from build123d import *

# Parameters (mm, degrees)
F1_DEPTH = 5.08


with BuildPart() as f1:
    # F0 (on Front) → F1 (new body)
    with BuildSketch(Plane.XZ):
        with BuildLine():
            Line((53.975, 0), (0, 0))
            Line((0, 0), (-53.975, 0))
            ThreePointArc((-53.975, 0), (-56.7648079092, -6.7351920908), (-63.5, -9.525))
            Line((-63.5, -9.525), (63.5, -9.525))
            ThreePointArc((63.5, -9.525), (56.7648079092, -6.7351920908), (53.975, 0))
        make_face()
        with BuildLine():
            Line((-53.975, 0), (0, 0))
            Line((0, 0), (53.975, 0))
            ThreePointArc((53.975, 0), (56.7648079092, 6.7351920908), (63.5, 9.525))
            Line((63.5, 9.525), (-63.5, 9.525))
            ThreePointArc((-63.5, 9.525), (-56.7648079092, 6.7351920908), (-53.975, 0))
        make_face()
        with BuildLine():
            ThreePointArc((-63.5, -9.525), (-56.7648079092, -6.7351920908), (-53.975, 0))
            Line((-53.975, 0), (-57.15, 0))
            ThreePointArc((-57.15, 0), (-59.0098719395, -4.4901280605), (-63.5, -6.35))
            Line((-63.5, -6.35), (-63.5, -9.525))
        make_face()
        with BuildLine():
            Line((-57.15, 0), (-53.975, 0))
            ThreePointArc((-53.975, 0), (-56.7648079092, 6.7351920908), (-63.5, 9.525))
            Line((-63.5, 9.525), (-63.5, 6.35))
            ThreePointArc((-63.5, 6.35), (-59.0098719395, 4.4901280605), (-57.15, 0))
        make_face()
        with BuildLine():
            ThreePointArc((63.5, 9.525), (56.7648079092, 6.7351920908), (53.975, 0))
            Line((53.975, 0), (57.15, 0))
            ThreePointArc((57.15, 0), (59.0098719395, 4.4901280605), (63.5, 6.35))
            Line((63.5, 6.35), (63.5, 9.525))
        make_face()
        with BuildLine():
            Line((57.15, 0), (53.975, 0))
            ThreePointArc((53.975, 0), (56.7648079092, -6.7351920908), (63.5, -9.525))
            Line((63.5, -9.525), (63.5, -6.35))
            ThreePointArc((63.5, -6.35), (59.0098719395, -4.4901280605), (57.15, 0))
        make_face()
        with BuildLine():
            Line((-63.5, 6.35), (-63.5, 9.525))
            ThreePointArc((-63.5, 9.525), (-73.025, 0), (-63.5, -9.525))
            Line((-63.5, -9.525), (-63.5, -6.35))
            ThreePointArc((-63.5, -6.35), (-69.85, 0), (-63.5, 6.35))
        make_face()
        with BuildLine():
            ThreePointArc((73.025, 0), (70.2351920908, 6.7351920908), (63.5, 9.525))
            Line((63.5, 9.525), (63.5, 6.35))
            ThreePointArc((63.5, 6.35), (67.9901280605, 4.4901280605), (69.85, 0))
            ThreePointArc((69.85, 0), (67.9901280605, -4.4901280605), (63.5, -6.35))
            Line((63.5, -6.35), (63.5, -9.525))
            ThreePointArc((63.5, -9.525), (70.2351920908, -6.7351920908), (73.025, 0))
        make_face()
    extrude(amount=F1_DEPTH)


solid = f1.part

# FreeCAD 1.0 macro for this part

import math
import FreeCAD as App
import Part
import Sketcher
Q = App.Units.Quantity

doc = App.newDocument("Part")
body = doc.addObject("PartDesign::Body", "Body")

sketch1 = body.newObject("Sketcher::SketchObject", "Sketch")
sketch1.AttachmentSupport = (doc.getObject("XZ_Plane"), [""])
sketch1.MapMode = "FlatFace"
sketch1.addGeometry([
    Part.LineSegment(App.Vector(-64, -10, 0), App.Vector(64, -10, 0)),
    Part.ArcOfCircle(Part.Circle(App.Vector(64, 0, 0), App.Vector(0, 0, 1), 10), math.radians(-90), math.radians(0)),
    Part.ArcOfCircle(Part.Circle(App.Vector(64, 0, 0), App.Vector(0, 0, 1), 10), math.radians(0), math.radians(90)),
    Part.LineSegment(App.Vector(64, 10, 0), App.Vector(-64, 10, 0)),
    Part.ArcOfCircle(Part.Circle(App.Vector(-64, 0, 0), App.Vector(0, 0, 1), 10), math.radians(90), math.radians(270)),
    Part.ArcOfCircle(Part.Circle(App.Vector(64, 0, 0), App.Vector(0, 0, 1), 6), math.radians(180), math.radians(270)),
    Part.ArcOfCircle(Part.Circle(App.Vector(64, 0, 0), App.Vector(0, 0, 1), 6), math.radians(90), math.radians(180)),
    Part.ArcOfCircle(Part.Circle(App.Vector(64, 0, 0), App.Vector(0, 0, 1), 6), math.radians(0), math.radians(90)),
    Part.ArcOfCircle(Part.Circle(App.Vector(64, 0, 0), App.Vector(0, 0, 1), 6), math.radians(-90), math.radians(0)),
    Part.ArcOfCircle(Part.Circle(App.Vector(-64, 0, 0), App.Vector(0, 0, 1), 6), math.radians(0), math.radians(90)),
    Part.ArcOfCircle(Part.Circle(App.Vector(-64, 0, 0), App.Vector(0, 0, 1), 6), math.radians(-90), math.radians(0)),
    Part.ArcOfCircle(Part.Circle(App.Vector(-64, 0, 0), App.Vector(0, 0, 1), 6), math.radians(90), math.radians(270)),
], False)
sketch1.addConstraint([
    Sketcher.Constraint("Tangent", 0, 2, 1, 1),
    Sketcher.Constraint("Tangent", 1, 2, 2, 1),
    Sketcher.Constraint("Tangent", 2, 2, 3, 1),
    Sketcher.Constraint("Tangent", 3, 2, 4, 1),
    Sketcher.Constraint("Tangent", 4, 2, 0, 1),
    Sketcher.Constraint("Tangent", 5, 1, 6, 2),
    Sketcher.Constraint("Tangent", 6, 1, 7, 2),
    Sketcher.Constraint("Tangent", 7, 1, 8, 2),
    Sketcher.Constraint("Tangent", 8, 1, 5, 2),
    Sketcher.Constraint("Tangent", 9, 1, 10, 2),
    Sketcher.Constraint("Tangent", 10, 1, 11, 2),
    Sketcher.Constraint("Tangent", 11, 1, 9, 2),
    Sketcher.Constraint("Horizontal", 0),
    Sketcher.Constraint("Horizontal", 3),
    Sketcher.Constraint("Coincident", 5, 3, 1, 3),
    Sketcher.Constraint("Coincident", 9, 3, 4, 3),
    Sketcher.Constraint("Equal", 1, 2),
    Sketcher.Constraint("Equal", 5, 6),
    Sketcher.Constraint("Equal", 8, 9),
    Sketcher.Constraint("Symmetric", 1, 3, 4, 3, -1, 1),
    Sketcher.Constraint("PointOnObject", 1, 2, -1),
    Sketcher.Constraint("PointOnObject", 5, 1, -1),
    Sketcher.Constraint("PointOnObject", 7, 1, -1),
    Sketcher.Constraint("PointOnObject", 9, 1, -1),
    Sketcher.Constraint("Vertical", 2, 2, 6, 1),
    Sketcher.Constraint("Vertical", 6, 1, 8, 1),
    Sketcher.Constraint("Vertical", 4, 2, 10, 1),
    Sketcher.Constraint("Vertical", 10, 1, 11, 1),
    Sketcher.Constraint("DistanceX", 0, 1, 0, 2, Q("5 in")),
    Sketcher.Constraint("Radius", 5, Q("0.25 in")),
    Sketcher.Constraint("Radius", 1, Q("0.375 in")),
])
pad1 = body.newObject("PartDesign::Pad", "Pad")
pad1.Profile = sketch1
pad1.Length = Q("0.2 in")

doc.recompute()
